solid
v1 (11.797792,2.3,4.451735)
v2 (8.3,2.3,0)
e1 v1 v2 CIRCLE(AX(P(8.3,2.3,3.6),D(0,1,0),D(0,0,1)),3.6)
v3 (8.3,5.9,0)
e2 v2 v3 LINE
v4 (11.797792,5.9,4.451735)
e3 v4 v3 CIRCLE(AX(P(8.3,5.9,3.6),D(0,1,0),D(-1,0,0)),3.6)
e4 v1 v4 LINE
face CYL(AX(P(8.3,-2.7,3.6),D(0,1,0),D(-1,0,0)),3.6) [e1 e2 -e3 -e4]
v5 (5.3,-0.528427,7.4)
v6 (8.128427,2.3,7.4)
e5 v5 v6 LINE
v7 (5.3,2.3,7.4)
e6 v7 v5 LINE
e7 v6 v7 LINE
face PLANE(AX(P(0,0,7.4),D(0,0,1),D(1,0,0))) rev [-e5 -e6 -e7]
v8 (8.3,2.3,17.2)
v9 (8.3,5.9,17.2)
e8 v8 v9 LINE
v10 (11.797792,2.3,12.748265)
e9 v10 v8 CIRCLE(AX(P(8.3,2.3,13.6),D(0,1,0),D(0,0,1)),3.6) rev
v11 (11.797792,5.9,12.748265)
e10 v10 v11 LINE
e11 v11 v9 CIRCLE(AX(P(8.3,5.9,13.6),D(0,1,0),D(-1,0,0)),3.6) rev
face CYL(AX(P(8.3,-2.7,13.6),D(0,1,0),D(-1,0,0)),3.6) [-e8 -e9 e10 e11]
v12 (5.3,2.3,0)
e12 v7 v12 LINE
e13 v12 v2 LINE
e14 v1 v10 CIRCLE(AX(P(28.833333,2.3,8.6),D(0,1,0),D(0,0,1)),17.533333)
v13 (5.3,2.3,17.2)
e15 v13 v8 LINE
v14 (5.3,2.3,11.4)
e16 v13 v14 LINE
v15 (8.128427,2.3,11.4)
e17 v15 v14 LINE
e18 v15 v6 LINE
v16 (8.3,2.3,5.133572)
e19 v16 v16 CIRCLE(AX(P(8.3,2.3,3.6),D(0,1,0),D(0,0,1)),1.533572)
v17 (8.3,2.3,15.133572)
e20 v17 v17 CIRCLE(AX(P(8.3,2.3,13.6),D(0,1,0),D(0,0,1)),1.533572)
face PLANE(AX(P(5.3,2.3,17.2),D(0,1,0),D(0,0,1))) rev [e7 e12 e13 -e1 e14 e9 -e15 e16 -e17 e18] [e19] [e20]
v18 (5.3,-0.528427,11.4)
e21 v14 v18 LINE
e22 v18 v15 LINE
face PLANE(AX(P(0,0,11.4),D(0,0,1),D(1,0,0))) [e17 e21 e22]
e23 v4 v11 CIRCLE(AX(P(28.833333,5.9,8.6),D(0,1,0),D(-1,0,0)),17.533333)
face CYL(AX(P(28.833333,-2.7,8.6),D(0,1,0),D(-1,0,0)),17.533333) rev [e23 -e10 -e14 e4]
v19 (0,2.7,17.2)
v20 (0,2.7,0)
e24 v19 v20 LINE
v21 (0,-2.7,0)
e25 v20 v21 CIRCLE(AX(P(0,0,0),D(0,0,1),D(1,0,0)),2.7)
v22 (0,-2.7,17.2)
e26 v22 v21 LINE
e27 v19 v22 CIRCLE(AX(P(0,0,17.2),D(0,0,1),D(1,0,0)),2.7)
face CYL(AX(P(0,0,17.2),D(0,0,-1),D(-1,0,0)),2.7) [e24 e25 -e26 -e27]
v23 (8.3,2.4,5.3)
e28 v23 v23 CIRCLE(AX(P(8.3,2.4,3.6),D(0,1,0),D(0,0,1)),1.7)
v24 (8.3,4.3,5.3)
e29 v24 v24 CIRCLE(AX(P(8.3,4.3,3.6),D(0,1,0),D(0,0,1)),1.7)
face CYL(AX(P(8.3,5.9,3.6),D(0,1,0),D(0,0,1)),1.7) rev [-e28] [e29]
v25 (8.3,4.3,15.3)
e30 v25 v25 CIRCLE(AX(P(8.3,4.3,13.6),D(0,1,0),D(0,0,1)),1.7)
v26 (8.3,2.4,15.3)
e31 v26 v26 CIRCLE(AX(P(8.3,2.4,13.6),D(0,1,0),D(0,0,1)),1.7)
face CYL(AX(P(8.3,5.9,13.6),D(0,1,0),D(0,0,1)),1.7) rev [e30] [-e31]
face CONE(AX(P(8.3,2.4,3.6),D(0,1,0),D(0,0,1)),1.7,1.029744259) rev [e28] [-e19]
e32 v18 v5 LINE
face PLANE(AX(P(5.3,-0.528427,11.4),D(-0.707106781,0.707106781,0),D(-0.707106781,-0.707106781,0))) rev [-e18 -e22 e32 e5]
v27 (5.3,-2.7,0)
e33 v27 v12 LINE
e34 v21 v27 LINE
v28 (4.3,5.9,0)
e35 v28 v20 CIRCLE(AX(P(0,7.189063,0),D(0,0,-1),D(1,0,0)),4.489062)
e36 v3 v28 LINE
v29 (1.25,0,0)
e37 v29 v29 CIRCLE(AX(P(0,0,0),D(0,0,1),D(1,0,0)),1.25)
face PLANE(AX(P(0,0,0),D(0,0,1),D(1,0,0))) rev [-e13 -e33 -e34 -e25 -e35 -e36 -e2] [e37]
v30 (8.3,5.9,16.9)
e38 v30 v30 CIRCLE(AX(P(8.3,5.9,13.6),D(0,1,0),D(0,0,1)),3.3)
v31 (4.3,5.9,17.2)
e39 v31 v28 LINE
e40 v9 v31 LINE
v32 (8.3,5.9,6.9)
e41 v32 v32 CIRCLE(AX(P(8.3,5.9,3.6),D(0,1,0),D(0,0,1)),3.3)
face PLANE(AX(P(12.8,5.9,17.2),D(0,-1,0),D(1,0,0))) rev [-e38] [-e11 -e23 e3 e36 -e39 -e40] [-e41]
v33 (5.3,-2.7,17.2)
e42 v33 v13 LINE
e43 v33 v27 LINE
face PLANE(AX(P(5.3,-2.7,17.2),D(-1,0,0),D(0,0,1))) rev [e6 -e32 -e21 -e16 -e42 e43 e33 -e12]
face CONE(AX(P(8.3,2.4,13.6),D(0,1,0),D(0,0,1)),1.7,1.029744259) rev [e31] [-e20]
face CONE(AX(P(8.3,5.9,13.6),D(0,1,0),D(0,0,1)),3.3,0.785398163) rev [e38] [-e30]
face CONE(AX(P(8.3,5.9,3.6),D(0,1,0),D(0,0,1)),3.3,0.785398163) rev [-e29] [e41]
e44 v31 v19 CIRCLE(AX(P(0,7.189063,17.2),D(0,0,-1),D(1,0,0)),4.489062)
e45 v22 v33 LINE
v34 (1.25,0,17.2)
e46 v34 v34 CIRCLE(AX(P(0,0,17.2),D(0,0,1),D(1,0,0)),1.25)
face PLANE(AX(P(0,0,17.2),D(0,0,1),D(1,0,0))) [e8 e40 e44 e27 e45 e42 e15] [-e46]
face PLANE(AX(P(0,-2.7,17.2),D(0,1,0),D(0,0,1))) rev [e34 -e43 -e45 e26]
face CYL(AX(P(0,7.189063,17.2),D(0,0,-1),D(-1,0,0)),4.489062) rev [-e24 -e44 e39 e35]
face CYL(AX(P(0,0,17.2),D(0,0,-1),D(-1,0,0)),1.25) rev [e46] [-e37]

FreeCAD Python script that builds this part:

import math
import FreeCAD as App
import Part
import Sketcher

V = App.Vector
Q = App.Units.Quantity

doc = App.newDocument("Part")
body = doc.addObject("PartDesign::Body", "Body")

sketch1 = body.newObject("Sketcher::SketchObject", "Sketch")
sketch1.AttachmentSupport = (doc.getObject("XY_Plane"), [""])
sketch1.MapMode = "FlatFace"
sketch1.addGeometry(Part.LineSegment(V(0, -2.7, 0), V(5.3, -2.7, 0)), False)
sketch1.addGeometry(Part.LineSegment(V(5.3, -2.7, 0), V(5.3, 2.3, 0)), False)
sketch1.addGeometry(Part.LineSegment(V(5.3, 2.3, 0), V(12.8, 2.3, 0)), False)
sketch1.addGeometry(Part.LineSegment(V(12.8, 2.3, 0), V(12.8, 5.9, 0)), False)
sketch1.addGeometry(Part.LineSegment(V(12.8, 5.9, 0), V(4.3, 5.9, 0)), False)
sketch1.addGeometry(Part.ArcOfCircle(Part.Circle(V(0, 7.2, 0), V(0, 0, 1), 4.5), math.radians(-90), math.radians(-17)), False)
sketch1.addGeometry(Part.ArcOfCircle(Part.Circle(V(0, 0, 0), V(0, 0, 1), 2.7), math.radians(90), math.radians(270)), False)
sketch1.addGeometry(Part.Circle(V(0, 0, 0), V(0, 0, 1), 1.2), False)
sketch1.addConstraint(Sketcher.Constraint("Coincident", 0, 2, 1, 1))
sketch1.addConstraint(Sketcher.Constraint("Coincident", 1, 2, 2, 1))
sketch1.addConstraint(Sketcher.Constraint("Coincident", 2, 2, 3, 1))
sketch1.addConstraint(Sketcher.Constraint("Coincident", 3, 2, 4, 1))
sketch1.addConstraint(Sketcher.Constraint("Coincident", 4, 2, 5, 2))
sketch1.addConstraint(Sketcher.Constraint("Tangent", 5, 1, 6, 1))
sketch1.addConstraint(Sketcher.Constraint("Tangent", 6, 2, 0, 1))
sketch1.addConstraint(Sketcher.Constraint("Horizontal", 0))
sketch1.addConstraint(Sketcher.Constraint("Vertical", 1))
sketch1.addConstraint(Sketcher.Constraint("Horizontal", 2))
sketch1.addConstraint(Sketcher.Constraint("Vertical", 3))
sketch1.addConstraint(Sketcher.Constraint("Horizontal", 4))
sketch1.addConstraint(Sketcher.Constraint("Coincident", 6, 3, -1, 1))
sketch1.addConstraint(Sketcher.Constraint("Coincident", 7, 3, -1, 1))
sketch1.addConstraint(Sketcher.Constraint("PointOnObject", 5, 3, -2))
sketch1.addConstraint(Sketcher.Constraint("Diameter", 7, Q("2.5 mm")))
sketch1.addConstraint(Sketcher.Constraint("Radius", 6, Q("2.7 mm")))
sketch1.addConstraint(Sketcher.Constraint("DistanceY", 1, 1, 1, 2, Q("5 mm")))
sketch1.addConstraint(Sketcher.Constraint("DistanceX", 0, 1, 0, 2, Q("5.3 mm")))
sketch1.addConstraint(Sketcher.Constraint("DistanceX", 2, 1, 2, 2, Q("7.5 mm")))
sketch1.addConstraint(Sketcher.Constraint("DistanceX", 4, 2, 4, 1, Q("8.5 mm")))
sketch1.addConstraint(Sketcher.Constraint("DistanceY", 3, 1, 3, 2, Q("3.6 mm")))
pad1 = body.newObject("PartDesign::Pad", "Pad")
pad1.Profile = sketch1
pad1.Length = 17.2

sketch2 = body.newObject("Sketcher::SketchObject", "Sketch001")
sketch2.AttachmentSupport = (doc.getObject("XZ_Plane"), [""])
sketch2.MapMode = "FlatFace"
sketch2.AttachmentOffset = App.Placement(V(0, 0, -5.9), App.Rotation())
sketch2.addGeometry(Part.LineSegment(V(12.8, 17.2, 0), V(12.8, 0, 0)), False)
sketch2.addGeometry(Part.LineSegment(V(12.8, 0, 0), V(8.3, 0, 0)), False)
sketch2.addGeometry(Part.ArcOfCircle(Part.Circle(V(8.3, 3.6, 0), V(0, 0, 1), 3.6), math.radians(-90), math.radians(0)), False)
sketch2.addGeometry(Part.ArcOfCircle(Part.Circle(V(8.3, 3.6, 0), V(0, 0, 1), 3.6), math.radians(0), math.radians(13.69)), False)
sketch2.addGeometry(Part.ArcOfCircle(Part.Circle(V(28.8, 8.6, 0), V(0, 0, 1), 17.5), math.radians(166), math.radians(194)), False)
sketch2.addGeometry(Part.ArcOfCircle(Part.Circle(V(8.3, 13.6, 0), V(0, 0, 1), 3.6), math.radians(-13.69), math.radians(0)), False)
sketch2.addGeometry(Part.ArcOfCircle(Part.Circle(V(8.3, 13.6, 0), V(0, 0, 1), 3.6), math.radians(0), math.radians(90)), False)
sketch2.addGeometry(Part.LineSegment(V(8.3, 17.2, 0), V(12.8, 17.2, 0)), False)
sketch2.addConstraint(Sketcher.Constraint("Coincident", 0, 2, 1, 1))
sketch2.addConstraint(Sketcher.Constraint("Tangent", 1, 2, 2, 1))
sketch2.addConstraint(Sketcher.Constraint("Tangent", 2, 2, 3, 1))
sketch2.addConstraint(Sketcher.Constraint("Tangent", 3, 2, 4, 2))
sketch2.addConstraint(Sketcher.Constraint("Tangent", 4, 1, 5, 1))
sketch2.addConstraint(Sketcher.Constraint("Tangent", 5, 2, 6, 1))
sketch2.addConstraint(Sketcher.Constraint("Tangent", 6, 2, 7, 1))
sketch2.addConstraint(Sketcher.Constraint("Coincident", 7, 2, 0, 1))
sketch2.addConstraint(Sketcher.Constraint("Vertical", 0))
sketch2.addConstraint(Sketcher.Constraint("Horizontal", 1))
sketch2.addConstraint(Sketcher.Constraint("Horizontal", 7))
sketch2.addConstraint(Sketcher.Constraint("Equal", 2, 3))
sketch2.addConstraint(Sketcher.Constraint("Equal", 3, 5))
sketch2.addConstraint(Sketcher.Constraint("Equal", 5, 6))
sketch2.addConstraint(Sketcher.Constraint("PointOnObject", 0, 2, -1))
sketch2.addConstraint(Sketcher.Constraint("Horizontal", 3, 3, 2, 2))
sketch2.addConstraint(Sketcher.Constraint("Horizontal", 6, 3, 5, 2))
sketch2.addConstraint(Sketcher.Constraint("Vertical", 3, 3, 5, 3))
sketch2.addConstraint(Sketcher.Constraint("Radius", 2, Q("3.6 mm")))
sketch2.addConstraint(Sketcher.Constraint("DistanceX", 1, 2, 1, 1, Q("4.5 mm")))
sketch2.addConstraint(Sketcher.Constraint("DistanceY", 0, 2, 0, 1, Q("17.2 mm")))
sketch2.addConstraint(Sketcher.Constraint("DistanceX", -1, 1, 2, 3, Q("8.3 mm")))
sketch2.addConstraint(Sketcher.Constraint("Radius", 4, Q("17.533333 mm")))
pocket1 = body.newObject("PartDesign::Pocket", "Pocket")
pocket1.Profile = sketch2
pocket1.Type = "ThroughAll"
pocket1.Reversed = True

sketch3 = body.newObject("Sketcher::SketchObject", "Sketch002")
sketch3.AttachmentSupport = (doc.getObject("XZ_Plane"), [""])
sketch3.MapMode = "FlatFace"
sketch3.AttachmentOffset = App.Placement(V(0, 0, -5.9), App.Rotation())
sketch3.addGeometry(Part.Circle(V(8.3, 3.6, 0), V(0, 0, 1), 1.7), False)
sketch3.addGeometry(Part.Circle(V(8.3, 13.6, 0), V(0, 0, 1), 1.7), False)
sketch3.addConstraint(Sketcher.Constraint("Equal", 0, 1))
sketch3.addConstraint(Sketcher.Constraint("Vertical", 0, 3, 1, 3))
sketch3.addConstraint(Sketcher.Constraint("Diameter", 0, Q("3.4 mm")))
sketch3.addConstraint(Sketcher.Constraint("DistanceY", 0, 3, 1, 3, Q("10 mm")))
sketch3.addConstraint(Sketcher.Constraint("DistanceX", -1, 1, 0, 3, Q("8.3 mm")))
sketch3.addConstraint(Sketcher.Constraint("DistanceY", -1, 1, 0, 3, Q("3.6 mm")))
doc.recompute()
hole = body.newObject("PartDesign::Hole", "Hole")
hole.Profile = sketch3
hole.ThreadType = "None"
hole.Diameter = 3.4
hole.DepthType = "Dimension"
hole.Depth = 3.5
hole.DrillPoint = "Angled"
hole.DrillPointAngle = 118
hole.HoleCutType = "Countersink"
hole.HoleCutDiameter = 6.6
hole.HoleCutCountersinkAngle = 90
hole.Reversed = True

sketch4 = body.newObject("Sketcher::SketchObject", "Sketch003")
sketch4.AttachmentSupport = (doc.getObject("XY_Plane"), [""])
sketch4.MapMode = "FlatFace"
sketch4.AttachmentOffset = App.Placement(V(0, 0, 7.4), App.Rotation())
sketch4.addGeometry(Part.LineSegment(V(5.3, 2.3, 0), V(5.3, -0.5, 0)), False)
sketch4.addGeometry(Part.LineSegment(V(5.3, -0.5, 0), V(8.1, 2.3, 0)), False)
sketch4.addGeometry(Part.LineSegment(V(8.1, 2.3, 0), V(5.3, 2.3, 0)), False)
sketch4.addConstraint(Sketcher.Constraint("Coincident", 0, 2, 1, 1))
sketch4.addConstraint(Sketcher.Constraint("Coincident", 1, 2, 2, 1))
sketch4.addConstraint(Sketcher.Constraint("Coincident", 2, 2, 0, 1))
sketch4.addConstraint(Sketcher.Constraint("Vertical", 0))
sketch4.addConstraint(Sketcher.Constraint("Horizontal", 2))
sketch4.addConstraint(Sketcher.Constraint("Equal", 2, 0))
sketch4.addConstraint(Sketcher.Constraint("Distance", 1, Q("4 mm")))
sketch4.addConstraint(Sketcher.Constraint("DistanceX", -1, 1, 0, 2, Q("5.3 mm")))
sketch4.addConstraint(Sketcher.Constraint("DistanceY", -1, 1, 1, 2, Q("2.3 mm")))
pad2 = body.newObject("PartDesign::Pad", "Pad001")
pad2.Profile = sketch4
pad2.Length = 4

doc.recompute()
